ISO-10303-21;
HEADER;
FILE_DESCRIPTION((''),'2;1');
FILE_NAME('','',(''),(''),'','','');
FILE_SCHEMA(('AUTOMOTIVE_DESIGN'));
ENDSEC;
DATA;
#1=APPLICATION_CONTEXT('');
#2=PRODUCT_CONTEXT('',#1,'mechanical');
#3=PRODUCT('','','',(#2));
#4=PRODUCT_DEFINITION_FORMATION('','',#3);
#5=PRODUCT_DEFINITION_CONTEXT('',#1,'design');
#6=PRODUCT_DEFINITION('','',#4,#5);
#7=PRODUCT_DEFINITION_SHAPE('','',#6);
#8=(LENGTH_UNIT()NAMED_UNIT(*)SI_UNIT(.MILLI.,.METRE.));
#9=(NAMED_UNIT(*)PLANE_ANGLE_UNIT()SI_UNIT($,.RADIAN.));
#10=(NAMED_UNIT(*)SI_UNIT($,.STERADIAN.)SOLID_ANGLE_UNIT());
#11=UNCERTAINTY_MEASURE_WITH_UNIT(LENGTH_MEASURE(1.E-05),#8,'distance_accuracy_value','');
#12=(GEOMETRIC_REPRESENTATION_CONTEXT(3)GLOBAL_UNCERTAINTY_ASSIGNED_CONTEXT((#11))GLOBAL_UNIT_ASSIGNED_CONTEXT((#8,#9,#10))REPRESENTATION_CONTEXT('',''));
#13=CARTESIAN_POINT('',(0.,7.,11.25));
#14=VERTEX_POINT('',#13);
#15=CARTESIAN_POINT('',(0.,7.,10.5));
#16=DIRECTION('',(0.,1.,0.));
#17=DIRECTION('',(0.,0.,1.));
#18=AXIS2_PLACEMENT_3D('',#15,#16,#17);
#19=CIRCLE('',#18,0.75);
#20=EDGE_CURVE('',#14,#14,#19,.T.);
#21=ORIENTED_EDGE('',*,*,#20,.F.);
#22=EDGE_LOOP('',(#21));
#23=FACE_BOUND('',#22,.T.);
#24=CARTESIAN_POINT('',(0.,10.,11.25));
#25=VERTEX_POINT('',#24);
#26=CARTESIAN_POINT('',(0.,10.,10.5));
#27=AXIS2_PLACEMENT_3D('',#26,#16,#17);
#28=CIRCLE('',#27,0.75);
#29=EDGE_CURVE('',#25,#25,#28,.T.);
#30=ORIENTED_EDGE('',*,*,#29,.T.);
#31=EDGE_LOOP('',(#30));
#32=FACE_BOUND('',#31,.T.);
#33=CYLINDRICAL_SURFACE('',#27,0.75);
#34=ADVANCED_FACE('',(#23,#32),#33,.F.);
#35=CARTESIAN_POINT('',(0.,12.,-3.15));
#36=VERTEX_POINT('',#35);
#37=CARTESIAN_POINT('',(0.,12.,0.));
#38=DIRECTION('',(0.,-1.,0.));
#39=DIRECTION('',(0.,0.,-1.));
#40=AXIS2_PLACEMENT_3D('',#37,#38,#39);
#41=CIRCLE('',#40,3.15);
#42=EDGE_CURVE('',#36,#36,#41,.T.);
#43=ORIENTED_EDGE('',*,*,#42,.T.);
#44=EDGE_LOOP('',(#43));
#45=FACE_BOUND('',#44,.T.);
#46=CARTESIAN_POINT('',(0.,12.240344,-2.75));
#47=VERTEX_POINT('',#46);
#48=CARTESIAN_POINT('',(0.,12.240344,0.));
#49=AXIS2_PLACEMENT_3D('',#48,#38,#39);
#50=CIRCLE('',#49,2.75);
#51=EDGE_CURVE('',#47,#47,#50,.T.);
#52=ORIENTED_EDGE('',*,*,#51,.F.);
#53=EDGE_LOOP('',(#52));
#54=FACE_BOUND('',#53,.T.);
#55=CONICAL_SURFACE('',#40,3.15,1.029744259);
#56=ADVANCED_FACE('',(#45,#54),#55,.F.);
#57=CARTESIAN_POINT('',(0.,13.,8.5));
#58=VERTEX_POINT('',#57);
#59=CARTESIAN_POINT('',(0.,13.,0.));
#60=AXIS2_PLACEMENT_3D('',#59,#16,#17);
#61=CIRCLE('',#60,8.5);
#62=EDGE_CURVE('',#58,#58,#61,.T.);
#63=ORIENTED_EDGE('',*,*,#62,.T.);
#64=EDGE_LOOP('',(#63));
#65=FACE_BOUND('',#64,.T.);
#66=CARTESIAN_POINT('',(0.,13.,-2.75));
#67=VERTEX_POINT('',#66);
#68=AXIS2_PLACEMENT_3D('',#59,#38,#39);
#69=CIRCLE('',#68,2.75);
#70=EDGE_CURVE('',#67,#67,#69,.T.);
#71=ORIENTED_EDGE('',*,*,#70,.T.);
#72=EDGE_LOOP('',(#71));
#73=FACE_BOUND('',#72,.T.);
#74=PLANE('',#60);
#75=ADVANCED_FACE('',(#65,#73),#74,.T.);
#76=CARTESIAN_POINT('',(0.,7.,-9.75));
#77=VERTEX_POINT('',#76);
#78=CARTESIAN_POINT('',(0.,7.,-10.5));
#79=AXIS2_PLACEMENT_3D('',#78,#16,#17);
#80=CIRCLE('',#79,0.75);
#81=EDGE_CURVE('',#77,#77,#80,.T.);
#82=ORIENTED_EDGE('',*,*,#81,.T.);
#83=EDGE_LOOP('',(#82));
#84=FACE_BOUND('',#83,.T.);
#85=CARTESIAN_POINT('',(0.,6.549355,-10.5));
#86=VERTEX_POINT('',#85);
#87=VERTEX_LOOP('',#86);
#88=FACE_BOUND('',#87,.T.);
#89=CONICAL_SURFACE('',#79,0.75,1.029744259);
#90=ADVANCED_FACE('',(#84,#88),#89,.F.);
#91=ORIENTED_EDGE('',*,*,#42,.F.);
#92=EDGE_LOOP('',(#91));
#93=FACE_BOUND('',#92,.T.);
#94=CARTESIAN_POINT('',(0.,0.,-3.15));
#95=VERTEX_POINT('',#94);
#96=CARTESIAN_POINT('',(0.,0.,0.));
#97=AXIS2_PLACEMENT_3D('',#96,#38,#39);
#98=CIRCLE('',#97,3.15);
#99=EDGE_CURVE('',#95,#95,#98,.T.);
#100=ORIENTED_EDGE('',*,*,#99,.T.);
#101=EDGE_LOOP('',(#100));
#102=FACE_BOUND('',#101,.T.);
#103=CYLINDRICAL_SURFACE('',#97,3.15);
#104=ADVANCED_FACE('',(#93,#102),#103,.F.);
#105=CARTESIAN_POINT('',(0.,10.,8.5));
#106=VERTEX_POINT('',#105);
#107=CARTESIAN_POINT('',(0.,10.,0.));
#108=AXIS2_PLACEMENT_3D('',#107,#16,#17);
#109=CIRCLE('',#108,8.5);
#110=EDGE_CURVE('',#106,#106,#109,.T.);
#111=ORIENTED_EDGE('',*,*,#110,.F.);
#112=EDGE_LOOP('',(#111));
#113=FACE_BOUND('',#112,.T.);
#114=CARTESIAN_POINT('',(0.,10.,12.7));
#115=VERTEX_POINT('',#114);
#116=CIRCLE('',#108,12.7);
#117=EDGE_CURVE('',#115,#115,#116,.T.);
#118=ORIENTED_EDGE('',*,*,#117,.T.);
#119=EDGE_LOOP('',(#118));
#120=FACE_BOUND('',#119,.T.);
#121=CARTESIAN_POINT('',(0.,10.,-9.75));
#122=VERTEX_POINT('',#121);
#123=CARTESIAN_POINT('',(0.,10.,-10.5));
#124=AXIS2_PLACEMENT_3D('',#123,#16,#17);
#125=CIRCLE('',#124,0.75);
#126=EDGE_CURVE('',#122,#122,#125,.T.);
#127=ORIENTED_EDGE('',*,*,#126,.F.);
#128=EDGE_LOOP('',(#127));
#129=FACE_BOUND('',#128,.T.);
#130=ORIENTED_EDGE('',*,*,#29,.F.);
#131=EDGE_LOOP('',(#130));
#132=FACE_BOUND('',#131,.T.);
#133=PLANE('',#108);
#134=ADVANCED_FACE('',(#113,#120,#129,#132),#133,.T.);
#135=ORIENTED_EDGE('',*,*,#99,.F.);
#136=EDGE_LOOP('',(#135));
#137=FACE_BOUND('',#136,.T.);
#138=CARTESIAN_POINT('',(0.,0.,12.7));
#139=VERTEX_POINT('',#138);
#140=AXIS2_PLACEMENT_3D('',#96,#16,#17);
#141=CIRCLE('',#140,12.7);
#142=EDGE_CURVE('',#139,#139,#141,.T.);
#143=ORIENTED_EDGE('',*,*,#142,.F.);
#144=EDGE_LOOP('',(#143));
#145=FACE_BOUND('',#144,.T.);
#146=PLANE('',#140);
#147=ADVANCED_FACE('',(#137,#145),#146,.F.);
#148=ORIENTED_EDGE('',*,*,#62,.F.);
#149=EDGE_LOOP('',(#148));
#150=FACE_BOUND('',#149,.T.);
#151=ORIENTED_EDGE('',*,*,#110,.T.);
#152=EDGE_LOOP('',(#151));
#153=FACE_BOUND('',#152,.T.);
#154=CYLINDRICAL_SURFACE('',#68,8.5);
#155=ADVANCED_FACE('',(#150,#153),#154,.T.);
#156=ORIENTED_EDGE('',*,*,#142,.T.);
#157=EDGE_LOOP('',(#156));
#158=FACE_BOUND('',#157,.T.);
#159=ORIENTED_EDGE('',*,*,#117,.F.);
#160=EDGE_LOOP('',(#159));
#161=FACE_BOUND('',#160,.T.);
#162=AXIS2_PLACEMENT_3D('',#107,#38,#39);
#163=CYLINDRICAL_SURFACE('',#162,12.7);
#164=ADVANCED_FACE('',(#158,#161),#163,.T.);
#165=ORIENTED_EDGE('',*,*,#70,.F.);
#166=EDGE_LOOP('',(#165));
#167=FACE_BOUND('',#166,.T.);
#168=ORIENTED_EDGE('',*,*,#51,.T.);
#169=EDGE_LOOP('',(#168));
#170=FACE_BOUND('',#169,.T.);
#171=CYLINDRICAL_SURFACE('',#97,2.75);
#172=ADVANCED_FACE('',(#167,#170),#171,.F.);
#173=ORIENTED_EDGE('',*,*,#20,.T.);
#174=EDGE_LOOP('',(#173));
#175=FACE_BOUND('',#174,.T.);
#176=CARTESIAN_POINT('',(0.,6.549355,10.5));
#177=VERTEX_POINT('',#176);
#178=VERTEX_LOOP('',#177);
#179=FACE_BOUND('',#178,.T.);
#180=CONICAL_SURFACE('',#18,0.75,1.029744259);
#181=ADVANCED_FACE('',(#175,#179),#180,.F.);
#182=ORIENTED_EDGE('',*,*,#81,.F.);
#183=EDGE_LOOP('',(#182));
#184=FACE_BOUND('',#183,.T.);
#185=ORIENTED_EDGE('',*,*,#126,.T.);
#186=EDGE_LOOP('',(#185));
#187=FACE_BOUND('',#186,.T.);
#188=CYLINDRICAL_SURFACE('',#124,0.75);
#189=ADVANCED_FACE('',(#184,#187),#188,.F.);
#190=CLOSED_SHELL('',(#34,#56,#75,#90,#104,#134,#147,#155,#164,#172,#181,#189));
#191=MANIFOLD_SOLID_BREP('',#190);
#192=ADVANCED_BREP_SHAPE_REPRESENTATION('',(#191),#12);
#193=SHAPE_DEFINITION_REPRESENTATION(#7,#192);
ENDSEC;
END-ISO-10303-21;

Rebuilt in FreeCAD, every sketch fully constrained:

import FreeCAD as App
import Part
import Sketcher

doc = App.newDocument("Part")
body = doc.addObject("PartDesign::Body", "Body")

sketch1 = doc.addObject("Sketcher::SketchObject", "Sketch")
body.addObject(sketch1)
sketch1.AttachmentSupport = (doc.XZ_Plane, [""])
sketch1.MapMode = "FlatFace"
sketch1.addGeometry(Part.Circle(App.Vector(0, 0, 0), App.Vector(0, 0, 1), 13), False)
sketch1.addConstraint([
    Sketcher.Constraint("Coincident", 0, 3, -1, 1),
    Sketcher.Constraint("Diameter", 0, 25.4),
])
pad1 = doc.addObject("PartDesign::Pad", "Pad")
body.addObject(pad1)
pad1.Profile = sketch1
pad1.Length = 10
pad1.Reversed = True

sketch2 = doc.addObject("Sketcher::SketchObject", "Sketch001")
body.addObject(sketch2)
sketch2.AttachmentSupport = (doc.XZ_Plane, [""])
sketch2.MapMode = "FlatFace"
sketch2.AttachmentOffset = App.Placement(App.Vector(0, 0, -10), App.Rotation())
sketch2.addGeometry(Part.Circle(App.Vector(0, 0, 0), App.Vector(0, 0, 1), 8), False)
sketch2.addConstraint([
    Sketcher.Constraint("Coincident", 0, 3, -1, 1),
    Sketcher.Constraint("Diameter", 0, 17.0),
])
pad2 = doc.addObject("PartDesign::Pad", "Pad001")
body.addObject(pad2)
pad2.Profile = sketch2
pad2.Length = 3
pad2.Reversed = True

sketch3 = doc.addObject("Sketcher::SketchObject", "Sketch002")
body.addObject(sketch3)
sketch3.AttachmentSupport = (doc.XZ_Plane, [""])
sketch3.MapMode = "FlatFace"
sketch3.addGeometry(Part.Circle(App.Vector(0, 0, 0), App.Vector(0, 0, 1), 2.8), False)
sketch3.addConstraint([
    Sketcher.Constraint("Coincident", 0, 3, -1, 1),
    Sketcher.Constraint("Diameter", 0, 5.5),
])
doc.recompute()
hole = doc.addObject("PartDesign::Hole", "Hole")
body.addObject(hole)
hole.Profile = sketch3
hole.ThreadType = "None"
hole.Diameter = 5.5
hole.DepthType = "ThroughAll"

sketch4 = doc.addObject("Sketcher::SketchObject", "Sketch003")
body.addObject(sketch4)
sketch4.AttachmentSupport = (doc.XZ_Plane, [""])
sketch4.MapMode = "FlatFace"
sketch4.addGeometry(Part.Circle(App.Vector(0, 0, 0), App.Vector(0, 0, 1), 3.1), False)
sketch4.addConstraint([
    Sketcher.Constraint("Coincident", 0, 3, -1, 1),
    Sketcher.Constraint("Diameter", 0, 6.3),
])
doc.recompute()
hole2 = doc.addObject("PartDesign::Hole", "Hole001")
body.addObject(hole2)
hole2.Profile = sketch4
hole2.ThreadType = "None"
hole2.Diameter = 6.3
hole2.DepthType = "Dimension"
hole2.Depth = 12
hole2.DrillPoint = "Angled"
hole2.DrillPointAngle = 118

sketch5 = doc.addObject("Sketcher::SketchObject", "Sketch004")
body.addObject(sketch5)
sketch5.AttachmentSupport = (doc.XZ_Plane, [""])
sketch5.MapMode = "FlatFace"
sketch5.AttachmentOffset = App.Placement(App.Vector(0, 0, -10), App.Rotation())
sketch5.addGeometry([
    Part.Circle(App.Vector(0, -10.5, 0), App.Vector(0, 0, 1), 0.8),
    Part.Circle(App.Vector(0, 10.5, 0), App.Vector(0, 0, 1), 0.8),
], False)
sketch5.addConstraint([
    Sketcher.Constraint("Equal", 0, 1),
    Sketcher.Constraint("Symmetric", 0, 3, 1, 3, -1, 1),
    Sketcher.Constraint("PointOnObject", 0, 3, -2),
    Sketcher.Constraint("Diameter", 0, 1.5),
    Sketcher.Constraint("DistanceY", 0, 3, 1, 3, 21.0),
])
doc.recompute()
hole3 = doc.addObject("PartDesign::Hole", "Hole002")
body.addObject(hole3)
hole3.Profile = sketch5
hole3.ThreadType = "None"
hole3.Diameter = 1.5
hole3.DepthType = "Dimension"
hole3.Depth = 3
hole3.DrillPoint = "Angled"
hole3.DrillPointAngle = 118
hole3.Reversed = True

doc.recompute()
